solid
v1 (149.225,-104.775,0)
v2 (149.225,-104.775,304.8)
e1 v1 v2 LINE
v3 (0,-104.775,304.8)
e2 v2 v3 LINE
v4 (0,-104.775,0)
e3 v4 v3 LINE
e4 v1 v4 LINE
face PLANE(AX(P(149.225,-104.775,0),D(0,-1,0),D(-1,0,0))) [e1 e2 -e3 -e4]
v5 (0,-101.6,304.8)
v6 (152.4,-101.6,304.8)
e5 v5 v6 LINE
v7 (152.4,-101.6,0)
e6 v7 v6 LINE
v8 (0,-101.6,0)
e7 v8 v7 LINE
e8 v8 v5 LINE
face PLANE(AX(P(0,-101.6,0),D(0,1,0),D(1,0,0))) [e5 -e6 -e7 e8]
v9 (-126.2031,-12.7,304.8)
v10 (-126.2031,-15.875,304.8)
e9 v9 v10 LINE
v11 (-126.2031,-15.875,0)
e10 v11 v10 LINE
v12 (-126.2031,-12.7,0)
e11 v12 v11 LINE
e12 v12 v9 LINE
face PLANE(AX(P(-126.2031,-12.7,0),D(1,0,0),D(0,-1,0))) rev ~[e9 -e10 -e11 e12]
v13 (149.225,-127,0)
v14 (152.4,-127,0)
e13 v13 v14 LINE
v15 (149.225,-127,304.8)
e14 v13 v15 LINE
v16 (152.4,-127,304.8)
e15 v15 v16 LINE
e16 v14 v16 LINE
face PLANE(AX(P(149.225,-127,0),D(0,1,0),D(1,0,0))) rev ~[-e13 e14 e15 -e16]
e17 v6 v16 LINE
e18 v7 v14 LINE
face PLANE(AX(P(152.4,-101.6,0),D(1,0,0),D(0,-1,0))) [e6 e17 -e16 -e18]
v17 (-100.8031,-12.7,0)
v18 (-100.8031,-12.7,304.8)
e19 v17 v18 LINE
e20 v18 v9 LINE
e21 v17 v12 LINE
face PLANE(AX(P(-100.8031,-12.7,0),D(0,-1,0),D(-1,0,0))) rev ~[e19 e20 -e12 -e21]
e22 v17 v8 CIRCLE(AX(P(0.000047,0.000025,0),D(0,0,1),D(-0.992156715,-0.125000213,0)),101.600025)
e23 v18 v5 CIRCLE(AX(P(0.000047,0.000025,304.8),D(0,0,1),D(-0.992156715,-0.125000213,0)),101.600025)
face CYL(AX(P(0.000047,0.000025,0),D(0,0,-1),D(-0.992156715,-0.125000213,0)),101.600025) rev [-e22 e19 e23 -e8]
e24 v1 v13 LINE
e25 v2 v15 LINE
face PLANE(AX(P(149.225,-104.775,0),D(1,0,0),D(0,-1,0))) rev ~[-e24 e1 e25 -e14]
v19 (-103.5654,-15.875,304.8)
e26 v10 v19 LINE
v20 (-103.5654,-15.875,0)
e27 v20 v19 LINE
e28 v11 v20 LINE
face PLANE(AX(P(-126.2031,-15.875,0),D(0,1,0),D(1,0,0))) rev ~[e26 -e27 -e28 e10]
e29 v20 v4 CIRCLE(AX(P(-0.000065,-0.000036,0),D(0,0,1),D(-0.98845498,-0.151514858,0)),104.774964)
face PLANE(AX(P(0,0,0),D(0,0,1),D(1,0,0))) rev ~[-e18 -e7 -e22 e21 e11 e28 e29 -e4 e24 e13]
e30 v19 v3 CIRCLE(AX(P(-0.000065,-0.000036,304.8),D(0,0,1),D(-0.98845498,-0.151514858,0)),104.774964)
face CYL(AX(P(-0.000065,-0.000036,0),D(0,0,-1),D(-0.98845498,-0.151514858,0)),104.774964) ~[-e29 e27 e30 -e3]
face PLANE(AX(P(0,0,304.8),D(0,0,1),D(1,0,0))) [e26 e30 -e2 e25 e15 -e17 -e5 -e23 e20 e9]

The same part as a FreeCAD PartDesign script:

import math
import FreeCAD as App
import Part
import Sketcher

V = App.Vector
Q = App.Units.Quantity

doc = App.newDocument("Part")
body = doc.addObject("PartDesign::Body", "Body")

# Sketch on XY plane
sketch1 = body.newObject("Sketcher::SketchObject", "Sketch")
sketch1.AttachmentSupport = (doc.getObject("XY_Plane"), [""])
sketch1.MapMode = "FlatFace"
sketch1.addGeometry([
    Part.ArcOfCircle(Part.Circle(V(0, 0, 0), V(0, 0, 1), 101.6), math.radians(-173), math.radians(-90)),  # 0
    Part.LineSegment(V(-100.8, -12.7, 0), V(-126.2, -12.7, 0)),  # 1
    Part.LineSegment(V(-126.2, -12.7, 0), V(-126.2, -15.9, 0)),  # 2
    Part.LineSegment(V(-126.2, -15.9, 0), V(-103.6, -15.9, 0)),  # 3
    Part.ArcOfCircle(Part.Circle(V(0, 0, 0), V(0, 0, 1), 104.8), math.radians(-171), math.radians(-90)),  # 4
    Part.LineSegment(V(0, -104.8, 0), V(149.2, -104.8, 0)),  # 5
    Part.LineSegment(V(149.2, -104.8, 0), V(149.2, -127, 0)),  # 6
    Part.LineSegment(V(149.2, -127, 0), V(152.4, -127, 0)),  # 7
    Part.LineSegment(V(152.4, -127, 0), V(152.4, -101.6, 0)),  # 8
    Part.LineSegment(V(152.4, -101.6, 0), V(0, -101.6, 0)),  # 9
], False)
sketch1.addConstraint([
    Sketcher.Constraint("Coincident", 0, 1, 1, 1),
    Sketcher.Constraint("Coincident", 1, 2, 2, 1),
    Sketcher.Constraint("Coincident", 2, 2, 3, 1),
    Sketcher.Constraint("Coincident", 3, 2, 4, 1),
    Sketcher.Constraint("Tangent", 4, 2, 5, 1),
    Sketcher.Constraint("Coincident", 5, 2, 6, 1),
    Sketcher.Constraint("Coincident", 6, 2, 7, 1),
    Sketcher.Constraint("Coincident", 7, 2, 8, 1),
    Sketcher.Constraint("Coincident", 8, 2, 9, 1),
    Sketcher.Constraint("Tangent", 9, 2, 0, 2),
    Sketcher.Constraint("Horizontal", 1),
    Sketcher.Constraint("Vertical", 2),
    Sketcher.Constraint("Horizontal", 3),
    Sketcher.Constraint("Horizontal", 5),
    Sketcher.Constraint("Vertical", 6),
    Sketcher.Constraint("Horizontal", 7),
    Sketcher.Constraint("Vertical", 8),
    Sketcher.Constraint("Horizontal", 9),
    Sketcher.Constraint("Coincident", 0, 3, -1, 1),
    Sketcher.Constraint("Coincident", 4, 3, -1, 1),
    Sketcher.Constraint("Equal", 7, 2),
    Sketcher.Constraint("Equal", 1, 8),
    Sketcher.Constraint("Radius", 0, Q("4 in")),
    Sketcher.Constraint("DistanceX", 1, 2, 1, 1, Q("1 in")),
    Sketcher.Constraint("DistanceX", 9, 2, 9, 1, Q("6 in")),
    Sketcher.Constraint("DistanceY", 0, 1, -1, 1, Q("0.5 in")),
    Sketcher.Constraint("DistanceX", 7, 1, 7, 2, Q("0.125 in")),
    Sketcher.Constraint("Radius", 4, Q("4.125 in")),
])
pad1 = body.newObject("PartDesign::Pad", "Pad")
pad1.Profile = sketch1
pad1.Length = Q("12 in")

doc.recompute()
